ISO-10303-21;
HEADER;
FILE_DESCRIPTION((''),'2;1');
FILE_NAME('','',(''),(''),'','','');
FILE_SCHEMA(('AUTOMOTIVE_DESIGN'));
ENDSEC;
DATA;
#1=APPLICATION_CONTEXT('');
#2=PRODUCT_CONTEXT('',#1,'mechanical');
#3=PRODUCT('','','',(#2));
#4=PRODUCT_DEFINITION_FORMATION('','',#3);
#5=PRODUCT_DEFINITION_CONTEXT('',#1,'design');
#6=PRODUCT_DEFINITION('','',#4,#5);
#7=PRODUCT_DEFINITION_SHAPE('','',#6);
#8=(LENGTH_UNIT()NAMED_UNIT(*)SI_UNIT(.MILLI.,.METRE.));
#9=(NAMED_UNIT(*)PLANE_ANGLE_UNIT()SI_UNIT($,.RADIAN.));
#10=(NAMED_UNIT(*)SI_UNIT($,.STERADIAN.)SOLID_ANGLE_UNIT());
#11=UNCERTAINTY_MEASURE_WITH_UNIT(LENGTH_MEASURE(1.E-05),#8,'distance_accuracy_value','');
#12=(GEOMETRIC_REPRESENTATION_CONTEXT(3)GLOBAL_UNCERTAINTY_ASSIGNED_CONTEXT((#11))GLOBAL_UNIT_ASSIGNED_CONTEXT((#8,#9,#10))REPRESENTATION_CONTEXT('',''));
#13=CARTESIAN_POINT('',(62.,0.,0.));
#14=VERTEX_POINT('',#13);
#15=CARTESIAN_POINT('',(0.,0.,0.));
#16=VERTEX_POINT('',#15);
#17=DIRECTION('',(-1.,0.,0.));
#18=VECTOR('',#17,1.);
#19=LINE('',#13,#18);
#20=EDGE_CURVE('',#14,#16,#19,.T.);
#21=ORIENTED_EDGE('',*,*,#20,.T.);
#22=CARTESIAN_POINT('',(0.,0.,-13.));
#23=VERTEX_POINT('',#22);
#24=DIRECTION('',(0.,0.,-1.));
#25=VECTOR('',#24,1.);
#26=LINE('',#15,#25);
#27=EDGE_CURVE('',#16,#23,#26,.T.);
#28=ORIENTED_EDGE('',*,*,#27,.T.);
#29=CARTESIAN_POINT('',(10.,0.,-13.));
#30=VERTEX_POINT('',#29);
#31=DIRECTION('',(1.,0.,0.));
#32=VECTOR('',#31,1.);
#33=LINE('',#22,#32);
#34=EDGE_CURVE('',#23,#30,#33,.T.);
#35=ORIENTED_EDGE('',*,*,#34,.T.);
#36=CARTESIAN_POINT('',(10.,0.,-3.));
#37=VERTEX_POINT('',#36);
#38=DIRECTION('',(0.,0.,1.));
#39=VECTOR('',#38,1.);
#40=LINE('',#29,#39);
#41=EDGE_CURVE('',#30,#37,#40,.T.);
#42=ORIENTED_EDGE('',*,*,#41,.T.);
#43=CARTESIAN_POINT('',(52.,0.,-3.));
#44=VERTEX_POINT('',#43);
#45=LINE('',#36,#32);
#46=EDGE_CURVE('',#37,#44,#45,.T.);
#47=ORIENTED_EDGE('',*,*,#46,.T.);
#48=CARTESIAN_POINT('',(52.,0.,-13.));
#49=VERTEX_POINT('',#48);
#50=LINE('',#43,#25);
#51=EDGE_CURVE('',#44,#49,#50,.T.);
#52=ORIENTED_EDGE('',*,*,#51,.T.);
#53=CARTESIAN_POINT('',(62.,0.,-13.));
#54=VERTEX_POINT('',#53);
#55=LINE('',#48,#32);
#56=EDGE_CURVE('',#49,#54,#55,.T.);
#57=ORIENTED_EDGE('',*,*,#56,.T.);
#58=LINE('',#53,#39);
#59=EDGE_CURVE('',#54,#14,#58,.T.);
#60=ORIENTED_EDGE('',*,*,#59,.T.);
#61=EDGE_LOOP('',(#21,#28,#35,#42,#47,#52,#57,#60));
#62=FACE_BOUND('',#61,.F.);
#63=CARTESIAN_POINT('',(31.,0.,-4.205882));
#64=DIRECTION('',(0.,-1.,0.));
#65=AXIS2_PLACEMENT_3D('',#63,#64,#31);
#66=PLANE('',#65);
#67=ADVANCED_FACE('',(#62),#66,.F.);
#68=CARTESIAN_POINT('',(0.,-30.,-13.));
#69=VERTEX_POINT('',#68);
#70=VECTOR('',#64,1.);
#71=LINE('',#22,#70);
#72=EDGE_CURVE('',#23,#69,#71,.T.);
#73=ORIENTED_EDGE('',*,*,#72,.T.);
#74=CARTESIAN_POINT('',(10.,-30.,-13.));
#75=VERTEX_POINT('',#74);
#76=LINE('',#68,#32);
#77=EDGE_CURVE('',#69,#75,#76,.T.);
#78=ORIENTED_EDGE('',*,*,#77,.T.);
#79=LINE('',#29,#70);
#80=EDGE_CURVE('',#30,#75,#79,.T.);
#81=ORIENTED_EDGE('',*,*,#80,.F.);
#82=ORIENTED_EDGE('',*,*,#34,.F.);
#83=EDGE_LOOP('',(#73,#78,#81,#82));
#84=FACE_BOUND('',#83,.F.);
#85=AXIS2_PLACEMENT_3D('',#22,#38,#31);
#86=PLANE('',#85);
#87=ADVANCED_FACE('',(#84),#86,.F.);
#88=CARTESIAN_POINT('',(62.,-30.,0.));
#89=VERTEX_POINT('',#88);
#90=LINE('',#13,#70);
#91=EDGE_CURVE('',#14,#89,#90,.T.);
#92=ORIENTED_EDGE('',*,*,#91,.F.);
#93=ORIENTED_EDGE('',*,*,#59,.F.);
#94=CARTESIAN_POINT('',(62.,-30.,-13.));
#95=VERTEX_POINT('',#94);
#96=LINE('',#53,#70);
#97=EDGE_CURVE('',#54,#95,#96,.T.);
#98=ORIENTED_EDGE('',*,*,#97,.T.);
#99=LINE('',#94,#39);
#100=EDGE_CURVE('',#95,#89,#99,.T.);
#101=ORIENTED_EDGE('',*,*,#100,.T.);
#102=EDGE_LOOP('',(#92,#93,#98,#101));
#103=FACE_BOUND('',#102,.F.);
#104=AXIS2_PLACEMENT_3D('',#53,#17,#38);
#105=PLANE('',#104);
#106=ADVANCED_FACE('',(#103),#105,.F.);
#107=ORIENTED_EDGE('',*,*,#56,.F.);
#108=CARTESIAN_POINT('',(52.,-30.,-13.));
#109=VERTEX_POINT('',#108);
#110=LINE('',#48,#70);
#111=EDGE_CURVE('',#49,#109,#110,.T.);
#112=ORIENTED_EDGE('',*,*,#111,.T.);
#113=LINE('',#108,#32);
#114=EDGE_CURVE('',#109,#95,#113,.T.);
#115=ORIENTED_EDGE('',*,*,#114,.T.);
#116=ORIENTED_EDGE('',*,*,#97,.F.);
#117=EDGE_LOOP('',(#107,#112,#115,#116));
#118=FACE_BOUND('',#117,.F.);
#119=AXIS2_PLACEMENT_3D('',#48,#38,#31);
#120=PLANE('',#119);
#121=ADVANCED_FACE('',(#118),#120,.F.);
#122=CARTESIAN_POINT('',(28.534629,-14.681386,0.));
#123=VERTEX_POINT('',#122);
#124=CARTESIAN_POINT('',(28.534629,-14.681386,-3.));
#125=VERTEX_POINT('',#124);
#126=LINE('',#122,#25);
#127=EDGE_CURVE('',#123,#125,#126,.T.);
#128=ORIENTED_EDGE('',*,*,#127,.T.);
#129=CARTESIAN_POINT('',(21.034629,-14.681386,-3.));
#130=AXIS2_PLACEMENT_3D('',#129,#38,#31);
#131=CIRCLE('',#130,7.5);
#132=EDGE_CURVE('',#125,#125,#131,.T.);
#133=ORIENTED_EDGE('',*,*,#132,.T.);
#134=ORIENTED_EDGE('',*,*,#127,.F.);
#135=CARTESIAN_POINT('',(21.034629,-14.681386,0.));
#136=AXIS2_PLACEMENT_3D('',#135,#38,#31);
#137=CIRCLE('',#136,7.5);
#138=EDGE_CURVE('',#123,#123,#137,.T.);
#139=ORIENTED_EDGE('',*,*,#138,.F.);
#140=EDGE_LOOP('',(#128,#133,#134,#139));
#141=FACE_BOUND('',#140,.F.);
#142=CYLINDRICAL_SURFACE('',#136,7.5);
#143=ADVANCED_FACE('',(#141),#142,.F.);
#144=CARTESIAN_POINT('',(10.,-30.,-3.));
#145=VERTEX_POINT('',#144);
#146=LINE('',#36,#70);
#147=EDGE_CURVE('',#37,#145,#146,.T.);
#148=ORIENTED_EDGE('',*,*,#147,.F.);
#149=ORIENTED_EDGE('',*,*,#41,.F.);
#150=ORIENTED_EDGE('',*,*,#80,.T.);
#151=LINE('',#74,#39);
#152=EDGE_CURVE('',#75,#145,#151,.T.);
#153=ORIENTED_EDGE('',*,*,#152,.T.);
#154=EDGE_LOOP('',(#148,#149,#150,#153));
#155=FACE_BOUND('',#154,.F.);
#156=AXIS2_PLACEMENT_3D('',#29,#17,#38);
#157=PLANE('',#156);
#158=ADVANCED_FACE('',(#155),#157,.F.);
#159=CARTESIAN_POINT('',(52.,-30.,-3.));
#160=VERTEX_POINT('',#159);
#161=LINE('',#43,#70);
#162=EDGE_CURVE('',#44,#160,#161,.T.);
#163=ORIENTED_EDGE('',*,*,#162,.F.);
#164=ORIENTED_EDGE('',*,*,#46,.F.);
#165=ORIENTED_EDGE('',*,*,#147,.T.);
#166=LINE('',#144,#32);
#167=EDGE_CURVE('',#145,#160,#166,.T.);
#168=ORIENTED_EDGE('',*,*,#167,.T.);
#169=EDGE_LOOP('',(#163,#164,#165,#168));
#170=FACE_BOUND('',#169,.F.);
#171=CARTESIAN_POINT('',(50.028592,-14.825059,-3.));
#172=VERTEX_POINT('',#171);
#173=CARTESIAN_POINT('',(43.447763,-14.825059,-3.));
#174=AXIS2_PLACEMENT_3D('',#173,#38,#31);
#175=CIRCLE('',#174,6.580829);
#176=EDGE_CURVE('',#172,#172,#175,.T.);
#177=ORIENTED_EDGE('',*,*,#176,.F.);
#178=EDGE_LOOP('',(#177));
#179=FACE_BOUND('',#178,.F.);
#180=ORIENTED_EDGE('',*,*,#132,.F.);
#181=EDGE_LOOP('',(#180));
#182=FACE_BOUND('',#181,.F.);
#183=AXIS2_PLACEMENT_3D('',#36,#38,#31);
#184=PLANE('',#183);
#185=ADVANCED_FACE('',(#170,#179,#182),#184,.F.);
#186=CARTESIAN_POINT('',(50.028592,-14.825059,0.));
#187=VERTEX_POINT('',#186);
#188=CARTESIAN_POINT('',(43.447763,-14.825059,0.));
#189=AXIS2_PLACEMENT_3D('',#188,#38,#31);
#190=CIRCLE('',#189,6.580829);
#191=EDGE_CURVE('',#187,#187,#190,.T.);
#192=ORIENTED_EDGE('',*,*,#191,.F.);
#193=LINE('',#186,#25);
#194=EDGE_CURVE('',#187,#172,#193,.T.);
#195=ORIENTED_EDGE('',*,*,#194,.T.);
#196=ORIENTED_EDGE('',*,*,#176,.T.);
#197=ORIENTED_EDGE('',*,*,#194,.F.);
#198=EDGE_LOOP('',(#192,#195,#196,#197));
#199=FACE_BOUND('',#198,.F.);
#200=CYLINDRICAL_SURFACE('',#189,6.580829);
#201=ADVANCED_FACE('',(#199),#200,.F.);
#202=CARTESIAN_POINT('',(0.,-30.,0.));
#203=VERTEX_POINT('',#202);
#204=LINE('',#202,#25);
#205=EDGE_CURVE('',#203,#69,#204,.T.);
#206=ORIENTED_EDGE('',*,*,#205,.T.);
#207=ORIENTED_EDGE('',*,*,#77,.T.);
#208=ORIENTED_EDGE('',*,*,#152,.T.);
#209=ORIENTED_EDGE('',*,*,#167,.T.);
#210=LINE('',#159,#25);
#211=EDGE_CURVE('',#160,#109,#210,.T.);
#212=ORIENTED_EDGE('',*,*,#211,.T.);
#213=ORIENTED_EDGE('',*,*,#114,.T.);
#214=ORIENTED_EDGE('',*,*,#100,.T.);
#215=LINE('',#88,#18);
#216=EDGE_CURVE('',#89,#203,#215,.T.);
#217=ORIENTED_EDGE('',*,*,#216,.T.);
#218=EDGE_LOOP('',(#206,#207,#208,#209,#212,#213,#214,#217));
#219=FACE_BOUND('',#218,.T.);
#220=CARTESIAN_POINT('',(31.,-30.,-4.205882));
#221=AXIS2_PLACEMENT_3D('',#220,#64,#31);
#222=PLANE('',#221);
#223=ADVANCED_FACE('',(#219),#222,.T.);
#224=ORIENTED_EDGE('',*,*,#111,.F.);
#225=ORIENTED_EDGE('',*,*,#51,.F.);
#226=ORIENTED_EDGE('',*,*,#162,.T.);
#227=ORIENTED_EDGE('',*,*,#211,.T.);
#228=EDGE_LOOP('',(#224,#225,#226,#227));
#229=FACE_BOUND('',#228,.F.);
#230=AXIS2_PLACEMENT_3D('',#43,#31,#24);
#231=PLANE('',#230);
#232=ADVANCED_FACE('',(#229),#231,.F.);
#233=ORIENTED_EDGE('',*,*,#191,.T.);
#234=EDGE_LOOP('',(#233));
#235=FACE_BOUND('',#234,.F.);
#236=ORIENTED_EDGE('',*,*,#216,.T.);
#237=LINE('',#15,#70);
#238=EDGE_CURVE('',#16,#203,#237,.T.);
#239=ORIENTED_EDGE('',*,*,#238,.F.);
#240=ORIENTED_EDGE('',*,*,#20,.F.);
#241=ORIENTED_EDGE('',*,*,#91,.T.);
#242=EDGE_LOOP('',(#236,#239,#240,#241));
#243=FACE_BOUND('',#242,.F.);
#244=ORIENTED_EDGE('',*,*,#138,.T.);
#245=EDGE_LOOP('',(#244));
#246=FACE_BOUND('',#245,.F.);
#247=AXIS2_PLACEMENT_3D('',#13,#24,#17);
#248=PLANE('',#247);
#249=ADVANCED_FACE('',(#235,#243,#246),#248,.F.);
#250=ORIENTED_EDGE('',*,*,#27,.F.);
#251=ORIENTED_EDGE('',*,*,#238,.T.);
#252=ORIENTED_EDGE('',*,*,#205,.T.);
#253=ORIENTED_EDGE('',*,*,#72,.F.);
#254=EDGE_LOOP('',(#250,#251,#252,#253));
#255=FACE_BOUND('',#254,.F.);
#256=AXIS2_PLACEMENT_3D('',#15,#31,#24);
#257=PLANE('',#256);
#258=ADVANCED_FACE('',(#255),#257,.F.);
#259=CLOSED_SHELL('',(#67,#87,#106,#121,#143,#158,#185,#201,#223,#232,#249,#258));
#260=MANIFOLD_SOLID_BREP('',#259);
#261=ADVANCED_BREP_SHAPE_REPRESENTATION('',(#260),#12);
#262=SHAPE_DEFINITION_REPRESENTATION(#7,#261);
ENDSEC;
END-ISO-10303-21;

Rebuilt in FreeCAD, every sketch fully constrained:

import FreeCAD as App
import Part
import Sketcher
from FreeCAD import Vector
Q = App.Units.Quantity

doc = App.newDocument("Part")
body = doc.addObject("PartDesign::Body", "Body")

# Sketch on XZ plane
sketch1 = body.newObject("Sketcher::SketchObject", "Sketch")
sketch1.AttachmentSupport = (doc.getObject("XZ_Plane"), [""])
sketch1.MapMode = "FlatFace"
sketch1.addGeometry([
    Part.LineSegment(Vector(62, 0, 0), Vector(0, 0, 0)),  # 0
    Part.LineSegment(Vector(0, 0, 0), Vector(0, -13, 0)),  # 1
    Part.LineSegment(Vector(0, -13, 0), Vector(10, -13, 0)),  # 2
    Part.LineSegment(Vector(10, -13, 0), Vector(10, -3, 0)),  # 3
    Part.LineSegment(Vector(10, -3, 0), Vector(52, -3, 0)),  # 4
    Part.LineSegment(Vector(52, -3, 0), Vector(52, -13, 0)),  # 5
    Part.LineSegment(Vector(52, -13, 0), Vector(62, -13, 0)),  # 6
    Part.LineSegment(Vector(62, -13, 0), Vector(62, 0, 0)),  # 7
], False)
sketch1.addConstraint([
    Sketcher.Constraint("Coincident", 0, 2, 1, 1),
    Sketcher.Constraint("Coincident", 1, 2, 2, 1),
    Sketcher.Constraint("Coincident", 2, 2, 3, 1),
    Sketcher.Constraint("Coincident", 3, 2, 4, 1),
    Sketcher.Constraint("Coincident", 4, 2, 5, 1),
    Sketcher.Constraint("Coincident", 5, 2, 6, 1),
    Sketcher.Constraint("Coincident", 6, 2, 7, 1),
    Sketcher.Constraint("Coincident", 7, 2, 0, 1),
    Sketcher.Constraint("Horizontal", 0),
    Sketcher.Constraint("Vertical", 1),
    Sketcher.Constraint("Horizontal", 2),
    Sketcher.Constraint("Vertical", 3),
    Sketcher.Constraint("Horizontal", 4),
    Sketcher.Constraint("Vertical", 5),
    Sketcher.Constraint("Horizontal", 6),
    Sketcher.Constraint("Vertical", 7),
    Sketcher.Constraint("Coincident", 0, 2, -1, 1),
    Sketcher.Constraint("Horizontal", 2, 2, 5, 2),
    Sketcher.Constraint("Equal", 2, 6),
    Sketcher.Constraint("Equal", 6, 3),
    Sketcher.Constraint("DistanceX", 0, 2, 0, 1, Q("62 mm")),
    Sketcher.Constraint("DistanceX", 2, 1, 2, 2, Q("10 mm")),
    Sketcher.Constraint("DistanceY", 1, 2, 1, 1, Q("13 mm")),
])
pad1 = body.newObject("PartDesign::Pad", "Pad")
pad1.Profile = sketch1
pad1.Length = 30

# Sketch on XY plane
sketch2 = body.newObject("Sketcher::SketchObject", "Sketch001")
sketch2.AttachmentSupport = (doc.getObject("XY_Plane"), [""])
sketch2.MapMode = "FlatFace"
sketch2.addGeometry([
    Part.Circle(Vector(21.034629, -14.681386, 0), Vector(0, 0, 1), 7.5),
    Part.Circle(Vector(43.447763, -14.825059, 0), Vector(0, 0, 1), 6.580829),
], False)
sketch2.addConstraint([
    Sketcher.Constraint("Diameter", 0, Q("15 mm")),
    Sketcher.Constraint("Diameter", 1, Q("13.161658 mm")),
    Sketcher.Constraint("DistanceX", -1, 1, 0, 3, Q("21.034629 mm")),
    Sketcher.Constraint("DistanceY", 1, 3, -1, 1, Q("14.825059 mm")),
    Sketcher.Constraint("DistanceY", 0, 3, -1, 1, Q("14.681386 mm")),
    Sketcher.Constraint("DistanceX", -1, 1, 1, 3, Q("43.447763 mm")),
])
pocket1 = body.newObject("PartDesign::Pocket", "Pocket")
pocket1.Profile = sketch2
pocket1.Type = "ThroughAll"

doc.recompute()
